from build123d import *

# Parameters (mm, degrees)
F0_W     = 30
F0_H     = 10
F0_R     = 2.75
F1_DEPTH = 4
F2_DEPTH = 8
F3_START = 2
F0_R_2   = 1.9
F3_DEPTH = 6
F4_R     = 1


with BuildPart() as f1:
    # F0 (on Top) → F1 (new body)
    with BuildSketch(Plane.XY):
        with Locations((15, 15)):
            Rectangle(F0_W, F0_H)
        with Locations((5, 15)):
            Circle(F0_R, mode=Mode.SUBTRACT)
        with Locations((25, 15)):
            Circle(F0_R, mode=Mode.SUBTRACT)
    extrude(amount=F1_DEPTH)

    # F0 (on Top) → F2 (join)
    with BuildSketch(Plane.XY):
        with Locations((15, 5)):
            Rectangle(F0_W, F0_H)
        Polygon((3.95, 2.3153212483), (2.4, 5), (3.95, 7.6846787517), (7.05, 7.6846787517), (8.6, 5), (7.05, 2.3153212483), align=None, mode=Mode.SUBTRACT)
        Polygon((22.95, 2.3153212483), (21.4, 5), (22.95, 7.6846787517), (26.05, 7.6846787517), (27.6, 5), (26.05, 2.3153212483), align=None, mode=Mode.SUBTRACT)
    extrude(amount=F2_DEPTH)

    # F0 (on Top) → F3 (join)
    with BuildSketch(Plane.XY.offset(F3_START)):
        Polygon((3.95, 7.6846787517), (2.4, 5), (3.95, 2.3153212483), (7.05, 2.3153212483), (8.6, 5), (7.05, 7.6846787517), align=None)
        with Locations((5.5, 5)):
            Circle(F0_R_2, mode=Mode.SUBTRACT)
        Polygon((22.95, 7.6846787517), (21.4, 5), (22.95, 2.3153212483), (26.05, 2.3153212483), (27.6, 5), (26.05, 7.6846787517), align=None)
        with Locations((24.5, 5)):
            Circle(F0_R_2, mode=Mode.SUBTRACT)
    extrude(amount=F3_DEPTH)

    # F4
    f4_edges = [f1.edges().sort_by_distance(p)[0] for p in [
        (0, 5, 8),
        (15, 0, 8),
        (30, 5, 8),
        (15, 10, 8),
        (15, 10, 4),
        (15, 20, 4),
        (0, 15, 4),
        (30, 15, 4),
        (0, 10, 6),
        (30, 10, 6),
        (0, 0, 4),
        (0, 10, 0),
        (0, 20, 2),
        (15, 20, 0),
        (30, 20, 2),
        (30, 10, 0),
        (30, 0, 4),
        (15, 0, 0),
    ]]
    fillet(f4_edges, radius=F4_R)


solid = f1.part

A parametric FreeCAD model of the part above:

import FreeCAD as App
import Part
import Sketcher
from FreeCAD import Vector
Q = App.Units.Quantity


def edges_at(feature, points):
    """Names of the edges that pass closest to the given points."""
    edges = feature.Shape.Edges
    near = lambda p: min(range(len(edges)), key=lambda i: edges[i].distToShape(Part.Vertex(*p))[0])
    return sorted({f"Edge{near(p) + 1}" for p in points})


def add_polygon(sketch, points):
    """Adds a closed chain of lines whose ends are joined by coincident constraints."""
    first, n = sketch.GeometryCount, len(points)
    for a, b in zip(points, points[1:] + points[:1]):
        sketch.addGeometry(Part.LineSegment(App.Vector(*a, 0), App.Vector(*b, 0)), False)
    for i in range(n):
        sketch.addConstraint(Sketcher.Constraint("Coincident", first + i, 2, first + (i + 1) % n, 1))

doc = App.newDocument("Part")
body = doc.addObject("PartDesign::Body", "Body")

# Sketch on XY plane
sketch1 = body.newObject("Sketcher::SketchObject", "Sketch")
sketch1.AttachmentSupport = (doc.getObject("XY_Plane"), [""])
sketch1.MapMode = "FlatFace"
add_polygon(sketch1, [(0, 20), (0, 10), (30, 10), (30, 20)])  # lines 0-3
sketch1.addGeometry(Part.Circle(Vector(5, 15, 0), Vector(0, 0, 1), 2.8), False)  # 4
sketch1.addGeometry(Part.Circle(Vector(25, 15, 0), Vector(0, 0, 1), 2.8), False)  # 5
sketch1.addConstraint([
    Sketcher.Constraint("Vertical", 0),
    Sketcher.Constraint("Horizontal", 1),
    Sketcher.Constraint("Vertical", 2),
    Sketcher.Constraint("Horizontal", 3),
    Sketcher.Constraint("Equal", 4, 5),
    Sketcher.Constraint("PointOnObject", 0, 2, -2),
    Sketcher.Constraint("Horizontal", 4, 3, 5, 3),
    Sketcher.Constraint("Diameter", 4, 5.5),
    Sketcher.Constraint("DistanceX", 1, 1, 1, 2, 30.0),
    Sketcher.Constraint("DistanceY", 0, 2, 0, 1, 10.0),
    Sketcher.Constraint("DistanceX", -1, 1, 4, 3, 5.0),
    Sketcher.Constraint("DistanceY", -1, 1, 4, 3, 15.0),
    Sketcher.Constraint("DistanceX", -1, 1, 5, 3, 25.0),
    Sketcher.Constraint("DistanceY", -1, 1, 0, 2, 10.0),
])
pad1 = body.newObject("PartDesign::Pad", "Pad")
pad1.Profile = sketch1
pad1.Length = 4

# Sketch on XY plane
sketch2 = body.newObject("Sketcher::SketchObject", "Sketch001")
sketch2.AttachmentSupport = (doc.getObject("XY_Plane"), [""])
sketch2.MapMode = "FlatFace"
add_polygon(sketch2, [(0, 10), (0, 0), (30, 0), (30, 10)])  # lines 0-3
add_polygon(sketch2, [(7, 2.3), (4, 2.3), (2.4, 5), (4, 7.7), (7, 7.7), (8.6, 5)])  # lines 4-9
add_polygon(sketch2, [(26.1, 2.3), (22.9, 2.3), (21.4, 5), (22.9, 7.7), (26.1, 7.7), (27.6, 5)])  # lines 10-15
sketch2.addConstraint([
    Sketcher.Constraint("Vertical", 0),
    Sketcher.Constraint("Horizontal", 1),
    Sketcher.Constraint("Vertical", 2),
    Sketcher.Constraint("Horizontal", 3),
    Sketcher.Constraint("Horizontal", 4),
    Sketcher.Constraint("Horizontal", 7),
    Sketcher.Constraint("Horizontal", 10),
    Sketcher.Constraint("Horizontal", 13),
    Sketcher.Constraint("Coincident", 0, 2, -1, 1),
    Sketcher.Constraint("Parallel", 5, 8),
    Sketcher.Constraint("Parallel", 6, 9),
    Sketcher.Constraint("Parallel", 8, 11),
    Sketcher.Constraint("Parallel", 9, 12),
    Sketcher.Constraint("Parallel", 11, 14),
    Sketcher.Constraint("Parallel", 12, 15),
    Sketcher.Constraint("Horizontal", 5, 2, 8, 2),
    Sketcher.Constraint("Horizontal", 9, 2, 10, 2),
    Sketcher.Constraint("Horizontal", 8, 2, 11, 2),
    Sketcher.Constraint("Horizontal", 7, 2, 12, 2),
    Sketcher.Constraint("Horizontal", 11, 2, 14, 2),
    Sketcher.Constraint("Vertical", 4, 2, 6, 2),
    Sketcher.Constraint("Vertical", 7, 2, 9, 2),
    Sketcher.Constraint("Equal", 7, 10),
    Sketcher.Constraint("DistanceX", 1, 1, 1, 2, 30.0),
    Sketcher.Constraint("DistanceY", 0, 2, 0, 1, 10.0),
    Sketcher.Constraint("Angle", 5, Q("120 deg")),
    Sketcher.Constraint("DistanceX", 4, 2, 4, 1, 3.1),
    Sketcher.Constraint("DistanceY", -1, 1, 5, 2, 5.0),
    Sketcher.Constraint("Distance", 5, 3.1),
    Sketcher.Constraint("DistanceX", -1, 1, 5, 2, 2.4),
    Sketcher.Constraint("DistanceX", -1, 1, 11, 2, 21.4),
])
pad2 = body.newObject("PartDesign::Pad", "Pad001")
pad2.Profile = sketch2
pad2.Length = 8

# Sketch on XY plane
sketch3 = body.newObject("Sketcher::SketchObject", "Sketch002")
sketch3.AttachmentSupport = (doc.getObject("XY_Plane"), [""])
sketch3.MapMode = "FlatFace"
sketch3.AttachmentOffset = App.Placement(Vector(0, 0, 2), App.Rotation())
add_polygon(sketch3, [(4, 7.7), (2.4, 5), (4, 2.3), (7, 2.3), (8.6, 5), (7, 7.7)])  # lines 0-5
sketch3.addGeometry(Part.Circle(Vector(5.5, 5, 0), Vector(0, 0, 1), 1.9), False)  # 6
add_polygon(sketch3, [(22.9, 7.7), (21.4, 5), (22.9, 2.3), (26.1, 2.3), (27.6, 5), (26.1, 7.7)])  # lines 7-12
sketch3.addGeometry(Part.Circle(Vector(24.5, 5, 0), Vector(0, 0, 1), 1.9), False)  # 13
sketch3.addConstraint([
    Sketcher.Constraint("Horizontal", 2),
    Sketcher.Constraint("Horizontal", 5),
    Sketcher.Constraint("Horizontal", 9),
    Sketcher.Constraint("Horizontal", 12),
    Sketcher.Constraint("Equal", 6, 13),
    Sketcher.Constraint("Parallel", 0, 3),
    Sketcher.Constraint("Parallel", 1, 4),
    Sketcher.Constraint("Parallel", 3, 7),
    Sketcher.Constraint("Parallel", 4, 8),
    Sketcher.Constraint("Parallel", 7, 10),
    Sketcher.Constraint("Parallel", 8, 11),
    Sketcher.Constraint("Horizontal", 6, 3, 13, 3),
    Sketcher.Constraint("Horizontal", 13, 3, 0, 2),
    Sketcher.Constraint("Horizontal", 0, 2, 3, 2),
    Sketcher.Constraint("Horizontal", 3, 2, 7, 2),
    Sketcher.Constraint("Horizontal", 2, 2, 8, 2),
    Sketcher.Constraint("Horizontal", 7, 2, 10, 2),
    Sketcher.Constraint("Horizontal", 5, 2, 11, 2),
    Sketcher.Constraint("Vertical", 2, 2, 4, 2),
    Sketcher.Constraint("Vertical", 1, 2, 5, 2),
    Sketcher.Constraint("Equal", 5, 9),
    Sketcher.Constraint("Diameter", 6, 3.8),
    Sketcher.Constraint("Angle", 0, Q("-120 deg")),
    Sketcher.Constraint("DistanceX", 2, 1, 2, 2, 3.1),
    Sketcher.Constraint("DistanceY", -1, 1, 6, 3, 5.0),
    Sketcher.Constraint("DistanceX", 6, 3, 13, 3, 19.0),
    Sketcher.Constraint("DistanceX", 2, 2, 9, 2, 19.0),
    Sketcher.Constraint("Distance", 0, 3.1),
    Sketcher.Constraint("DistanceX", -1, 1, 6, 3, 5.5),
    Sketcher.Constraint("DistanceX", -1, 1, 0, 2, 2.4),
])
pad3 = body.newObject("PartDesign::Pad", "Pad002")
pad3.Profile = sketch3
pad3.Length = 6
doc.recompute()

fillet = body.newObject("PartDesign::Fillet", "Fillet")
fillet.Base = (pad3, edges_at(pad3, [
    (0, 5, 8),
    (15, 0, 8),
    (30, 5, 8),
    (15, 10, 8),
    (15, 10, 4),
    (15, 20, 4),
    (0, 15, 4),
    (30, 15, 4),
    (0, 10, 6),
    (30, 10, 6),
    (0, 0, 4),
    (0, 10, 0),
    (0, 20, 2),
    (15, 20, 0),
    (30, 20, 2),
    (30, 10, 0),
    (30, 0, 4),
    (15, 0, 0),
]))
fillet.Radius = 1

doc.recompute()
